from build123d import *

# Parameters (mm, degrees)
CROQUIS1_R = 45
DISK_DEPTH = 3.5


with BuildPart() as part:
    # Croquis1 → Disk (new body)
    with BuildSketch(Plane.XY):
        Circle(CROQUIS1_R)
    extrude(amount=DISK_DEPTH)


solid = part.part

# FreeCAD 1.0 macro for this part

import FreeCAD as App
import Part
import Sketcher
from FreeCAD import Vector

doc = App.newDocument("Part")
body = doc.addObject("PartDesign::Body", "Body")

# Sketch on XY plane
sketch1 = body.newObject("Sketcher::SketchObject", "Sketch")
sketch1.AttachmentSupport = (doc.getObject("XY_Plane"), [""])
sketch1.MapMode = "FlatFace"
sketch1.addGeometry(Part.Circle(Vector(0, 0, 0), Vector(0, 0, 1), 45), False)
sketch1.addConstraint(Sketcher.Constraint("Coincident", 0, 3, -1, 1))
sketch1.addConstraint(Sketcher.Constraint("Diameter", 0, 90.0))
pad1 = body.newObject("PartDesign::Pad", "Pad")
pad1.Profile = sketch1
pad1.Length = 3.5

doc.recompute()
